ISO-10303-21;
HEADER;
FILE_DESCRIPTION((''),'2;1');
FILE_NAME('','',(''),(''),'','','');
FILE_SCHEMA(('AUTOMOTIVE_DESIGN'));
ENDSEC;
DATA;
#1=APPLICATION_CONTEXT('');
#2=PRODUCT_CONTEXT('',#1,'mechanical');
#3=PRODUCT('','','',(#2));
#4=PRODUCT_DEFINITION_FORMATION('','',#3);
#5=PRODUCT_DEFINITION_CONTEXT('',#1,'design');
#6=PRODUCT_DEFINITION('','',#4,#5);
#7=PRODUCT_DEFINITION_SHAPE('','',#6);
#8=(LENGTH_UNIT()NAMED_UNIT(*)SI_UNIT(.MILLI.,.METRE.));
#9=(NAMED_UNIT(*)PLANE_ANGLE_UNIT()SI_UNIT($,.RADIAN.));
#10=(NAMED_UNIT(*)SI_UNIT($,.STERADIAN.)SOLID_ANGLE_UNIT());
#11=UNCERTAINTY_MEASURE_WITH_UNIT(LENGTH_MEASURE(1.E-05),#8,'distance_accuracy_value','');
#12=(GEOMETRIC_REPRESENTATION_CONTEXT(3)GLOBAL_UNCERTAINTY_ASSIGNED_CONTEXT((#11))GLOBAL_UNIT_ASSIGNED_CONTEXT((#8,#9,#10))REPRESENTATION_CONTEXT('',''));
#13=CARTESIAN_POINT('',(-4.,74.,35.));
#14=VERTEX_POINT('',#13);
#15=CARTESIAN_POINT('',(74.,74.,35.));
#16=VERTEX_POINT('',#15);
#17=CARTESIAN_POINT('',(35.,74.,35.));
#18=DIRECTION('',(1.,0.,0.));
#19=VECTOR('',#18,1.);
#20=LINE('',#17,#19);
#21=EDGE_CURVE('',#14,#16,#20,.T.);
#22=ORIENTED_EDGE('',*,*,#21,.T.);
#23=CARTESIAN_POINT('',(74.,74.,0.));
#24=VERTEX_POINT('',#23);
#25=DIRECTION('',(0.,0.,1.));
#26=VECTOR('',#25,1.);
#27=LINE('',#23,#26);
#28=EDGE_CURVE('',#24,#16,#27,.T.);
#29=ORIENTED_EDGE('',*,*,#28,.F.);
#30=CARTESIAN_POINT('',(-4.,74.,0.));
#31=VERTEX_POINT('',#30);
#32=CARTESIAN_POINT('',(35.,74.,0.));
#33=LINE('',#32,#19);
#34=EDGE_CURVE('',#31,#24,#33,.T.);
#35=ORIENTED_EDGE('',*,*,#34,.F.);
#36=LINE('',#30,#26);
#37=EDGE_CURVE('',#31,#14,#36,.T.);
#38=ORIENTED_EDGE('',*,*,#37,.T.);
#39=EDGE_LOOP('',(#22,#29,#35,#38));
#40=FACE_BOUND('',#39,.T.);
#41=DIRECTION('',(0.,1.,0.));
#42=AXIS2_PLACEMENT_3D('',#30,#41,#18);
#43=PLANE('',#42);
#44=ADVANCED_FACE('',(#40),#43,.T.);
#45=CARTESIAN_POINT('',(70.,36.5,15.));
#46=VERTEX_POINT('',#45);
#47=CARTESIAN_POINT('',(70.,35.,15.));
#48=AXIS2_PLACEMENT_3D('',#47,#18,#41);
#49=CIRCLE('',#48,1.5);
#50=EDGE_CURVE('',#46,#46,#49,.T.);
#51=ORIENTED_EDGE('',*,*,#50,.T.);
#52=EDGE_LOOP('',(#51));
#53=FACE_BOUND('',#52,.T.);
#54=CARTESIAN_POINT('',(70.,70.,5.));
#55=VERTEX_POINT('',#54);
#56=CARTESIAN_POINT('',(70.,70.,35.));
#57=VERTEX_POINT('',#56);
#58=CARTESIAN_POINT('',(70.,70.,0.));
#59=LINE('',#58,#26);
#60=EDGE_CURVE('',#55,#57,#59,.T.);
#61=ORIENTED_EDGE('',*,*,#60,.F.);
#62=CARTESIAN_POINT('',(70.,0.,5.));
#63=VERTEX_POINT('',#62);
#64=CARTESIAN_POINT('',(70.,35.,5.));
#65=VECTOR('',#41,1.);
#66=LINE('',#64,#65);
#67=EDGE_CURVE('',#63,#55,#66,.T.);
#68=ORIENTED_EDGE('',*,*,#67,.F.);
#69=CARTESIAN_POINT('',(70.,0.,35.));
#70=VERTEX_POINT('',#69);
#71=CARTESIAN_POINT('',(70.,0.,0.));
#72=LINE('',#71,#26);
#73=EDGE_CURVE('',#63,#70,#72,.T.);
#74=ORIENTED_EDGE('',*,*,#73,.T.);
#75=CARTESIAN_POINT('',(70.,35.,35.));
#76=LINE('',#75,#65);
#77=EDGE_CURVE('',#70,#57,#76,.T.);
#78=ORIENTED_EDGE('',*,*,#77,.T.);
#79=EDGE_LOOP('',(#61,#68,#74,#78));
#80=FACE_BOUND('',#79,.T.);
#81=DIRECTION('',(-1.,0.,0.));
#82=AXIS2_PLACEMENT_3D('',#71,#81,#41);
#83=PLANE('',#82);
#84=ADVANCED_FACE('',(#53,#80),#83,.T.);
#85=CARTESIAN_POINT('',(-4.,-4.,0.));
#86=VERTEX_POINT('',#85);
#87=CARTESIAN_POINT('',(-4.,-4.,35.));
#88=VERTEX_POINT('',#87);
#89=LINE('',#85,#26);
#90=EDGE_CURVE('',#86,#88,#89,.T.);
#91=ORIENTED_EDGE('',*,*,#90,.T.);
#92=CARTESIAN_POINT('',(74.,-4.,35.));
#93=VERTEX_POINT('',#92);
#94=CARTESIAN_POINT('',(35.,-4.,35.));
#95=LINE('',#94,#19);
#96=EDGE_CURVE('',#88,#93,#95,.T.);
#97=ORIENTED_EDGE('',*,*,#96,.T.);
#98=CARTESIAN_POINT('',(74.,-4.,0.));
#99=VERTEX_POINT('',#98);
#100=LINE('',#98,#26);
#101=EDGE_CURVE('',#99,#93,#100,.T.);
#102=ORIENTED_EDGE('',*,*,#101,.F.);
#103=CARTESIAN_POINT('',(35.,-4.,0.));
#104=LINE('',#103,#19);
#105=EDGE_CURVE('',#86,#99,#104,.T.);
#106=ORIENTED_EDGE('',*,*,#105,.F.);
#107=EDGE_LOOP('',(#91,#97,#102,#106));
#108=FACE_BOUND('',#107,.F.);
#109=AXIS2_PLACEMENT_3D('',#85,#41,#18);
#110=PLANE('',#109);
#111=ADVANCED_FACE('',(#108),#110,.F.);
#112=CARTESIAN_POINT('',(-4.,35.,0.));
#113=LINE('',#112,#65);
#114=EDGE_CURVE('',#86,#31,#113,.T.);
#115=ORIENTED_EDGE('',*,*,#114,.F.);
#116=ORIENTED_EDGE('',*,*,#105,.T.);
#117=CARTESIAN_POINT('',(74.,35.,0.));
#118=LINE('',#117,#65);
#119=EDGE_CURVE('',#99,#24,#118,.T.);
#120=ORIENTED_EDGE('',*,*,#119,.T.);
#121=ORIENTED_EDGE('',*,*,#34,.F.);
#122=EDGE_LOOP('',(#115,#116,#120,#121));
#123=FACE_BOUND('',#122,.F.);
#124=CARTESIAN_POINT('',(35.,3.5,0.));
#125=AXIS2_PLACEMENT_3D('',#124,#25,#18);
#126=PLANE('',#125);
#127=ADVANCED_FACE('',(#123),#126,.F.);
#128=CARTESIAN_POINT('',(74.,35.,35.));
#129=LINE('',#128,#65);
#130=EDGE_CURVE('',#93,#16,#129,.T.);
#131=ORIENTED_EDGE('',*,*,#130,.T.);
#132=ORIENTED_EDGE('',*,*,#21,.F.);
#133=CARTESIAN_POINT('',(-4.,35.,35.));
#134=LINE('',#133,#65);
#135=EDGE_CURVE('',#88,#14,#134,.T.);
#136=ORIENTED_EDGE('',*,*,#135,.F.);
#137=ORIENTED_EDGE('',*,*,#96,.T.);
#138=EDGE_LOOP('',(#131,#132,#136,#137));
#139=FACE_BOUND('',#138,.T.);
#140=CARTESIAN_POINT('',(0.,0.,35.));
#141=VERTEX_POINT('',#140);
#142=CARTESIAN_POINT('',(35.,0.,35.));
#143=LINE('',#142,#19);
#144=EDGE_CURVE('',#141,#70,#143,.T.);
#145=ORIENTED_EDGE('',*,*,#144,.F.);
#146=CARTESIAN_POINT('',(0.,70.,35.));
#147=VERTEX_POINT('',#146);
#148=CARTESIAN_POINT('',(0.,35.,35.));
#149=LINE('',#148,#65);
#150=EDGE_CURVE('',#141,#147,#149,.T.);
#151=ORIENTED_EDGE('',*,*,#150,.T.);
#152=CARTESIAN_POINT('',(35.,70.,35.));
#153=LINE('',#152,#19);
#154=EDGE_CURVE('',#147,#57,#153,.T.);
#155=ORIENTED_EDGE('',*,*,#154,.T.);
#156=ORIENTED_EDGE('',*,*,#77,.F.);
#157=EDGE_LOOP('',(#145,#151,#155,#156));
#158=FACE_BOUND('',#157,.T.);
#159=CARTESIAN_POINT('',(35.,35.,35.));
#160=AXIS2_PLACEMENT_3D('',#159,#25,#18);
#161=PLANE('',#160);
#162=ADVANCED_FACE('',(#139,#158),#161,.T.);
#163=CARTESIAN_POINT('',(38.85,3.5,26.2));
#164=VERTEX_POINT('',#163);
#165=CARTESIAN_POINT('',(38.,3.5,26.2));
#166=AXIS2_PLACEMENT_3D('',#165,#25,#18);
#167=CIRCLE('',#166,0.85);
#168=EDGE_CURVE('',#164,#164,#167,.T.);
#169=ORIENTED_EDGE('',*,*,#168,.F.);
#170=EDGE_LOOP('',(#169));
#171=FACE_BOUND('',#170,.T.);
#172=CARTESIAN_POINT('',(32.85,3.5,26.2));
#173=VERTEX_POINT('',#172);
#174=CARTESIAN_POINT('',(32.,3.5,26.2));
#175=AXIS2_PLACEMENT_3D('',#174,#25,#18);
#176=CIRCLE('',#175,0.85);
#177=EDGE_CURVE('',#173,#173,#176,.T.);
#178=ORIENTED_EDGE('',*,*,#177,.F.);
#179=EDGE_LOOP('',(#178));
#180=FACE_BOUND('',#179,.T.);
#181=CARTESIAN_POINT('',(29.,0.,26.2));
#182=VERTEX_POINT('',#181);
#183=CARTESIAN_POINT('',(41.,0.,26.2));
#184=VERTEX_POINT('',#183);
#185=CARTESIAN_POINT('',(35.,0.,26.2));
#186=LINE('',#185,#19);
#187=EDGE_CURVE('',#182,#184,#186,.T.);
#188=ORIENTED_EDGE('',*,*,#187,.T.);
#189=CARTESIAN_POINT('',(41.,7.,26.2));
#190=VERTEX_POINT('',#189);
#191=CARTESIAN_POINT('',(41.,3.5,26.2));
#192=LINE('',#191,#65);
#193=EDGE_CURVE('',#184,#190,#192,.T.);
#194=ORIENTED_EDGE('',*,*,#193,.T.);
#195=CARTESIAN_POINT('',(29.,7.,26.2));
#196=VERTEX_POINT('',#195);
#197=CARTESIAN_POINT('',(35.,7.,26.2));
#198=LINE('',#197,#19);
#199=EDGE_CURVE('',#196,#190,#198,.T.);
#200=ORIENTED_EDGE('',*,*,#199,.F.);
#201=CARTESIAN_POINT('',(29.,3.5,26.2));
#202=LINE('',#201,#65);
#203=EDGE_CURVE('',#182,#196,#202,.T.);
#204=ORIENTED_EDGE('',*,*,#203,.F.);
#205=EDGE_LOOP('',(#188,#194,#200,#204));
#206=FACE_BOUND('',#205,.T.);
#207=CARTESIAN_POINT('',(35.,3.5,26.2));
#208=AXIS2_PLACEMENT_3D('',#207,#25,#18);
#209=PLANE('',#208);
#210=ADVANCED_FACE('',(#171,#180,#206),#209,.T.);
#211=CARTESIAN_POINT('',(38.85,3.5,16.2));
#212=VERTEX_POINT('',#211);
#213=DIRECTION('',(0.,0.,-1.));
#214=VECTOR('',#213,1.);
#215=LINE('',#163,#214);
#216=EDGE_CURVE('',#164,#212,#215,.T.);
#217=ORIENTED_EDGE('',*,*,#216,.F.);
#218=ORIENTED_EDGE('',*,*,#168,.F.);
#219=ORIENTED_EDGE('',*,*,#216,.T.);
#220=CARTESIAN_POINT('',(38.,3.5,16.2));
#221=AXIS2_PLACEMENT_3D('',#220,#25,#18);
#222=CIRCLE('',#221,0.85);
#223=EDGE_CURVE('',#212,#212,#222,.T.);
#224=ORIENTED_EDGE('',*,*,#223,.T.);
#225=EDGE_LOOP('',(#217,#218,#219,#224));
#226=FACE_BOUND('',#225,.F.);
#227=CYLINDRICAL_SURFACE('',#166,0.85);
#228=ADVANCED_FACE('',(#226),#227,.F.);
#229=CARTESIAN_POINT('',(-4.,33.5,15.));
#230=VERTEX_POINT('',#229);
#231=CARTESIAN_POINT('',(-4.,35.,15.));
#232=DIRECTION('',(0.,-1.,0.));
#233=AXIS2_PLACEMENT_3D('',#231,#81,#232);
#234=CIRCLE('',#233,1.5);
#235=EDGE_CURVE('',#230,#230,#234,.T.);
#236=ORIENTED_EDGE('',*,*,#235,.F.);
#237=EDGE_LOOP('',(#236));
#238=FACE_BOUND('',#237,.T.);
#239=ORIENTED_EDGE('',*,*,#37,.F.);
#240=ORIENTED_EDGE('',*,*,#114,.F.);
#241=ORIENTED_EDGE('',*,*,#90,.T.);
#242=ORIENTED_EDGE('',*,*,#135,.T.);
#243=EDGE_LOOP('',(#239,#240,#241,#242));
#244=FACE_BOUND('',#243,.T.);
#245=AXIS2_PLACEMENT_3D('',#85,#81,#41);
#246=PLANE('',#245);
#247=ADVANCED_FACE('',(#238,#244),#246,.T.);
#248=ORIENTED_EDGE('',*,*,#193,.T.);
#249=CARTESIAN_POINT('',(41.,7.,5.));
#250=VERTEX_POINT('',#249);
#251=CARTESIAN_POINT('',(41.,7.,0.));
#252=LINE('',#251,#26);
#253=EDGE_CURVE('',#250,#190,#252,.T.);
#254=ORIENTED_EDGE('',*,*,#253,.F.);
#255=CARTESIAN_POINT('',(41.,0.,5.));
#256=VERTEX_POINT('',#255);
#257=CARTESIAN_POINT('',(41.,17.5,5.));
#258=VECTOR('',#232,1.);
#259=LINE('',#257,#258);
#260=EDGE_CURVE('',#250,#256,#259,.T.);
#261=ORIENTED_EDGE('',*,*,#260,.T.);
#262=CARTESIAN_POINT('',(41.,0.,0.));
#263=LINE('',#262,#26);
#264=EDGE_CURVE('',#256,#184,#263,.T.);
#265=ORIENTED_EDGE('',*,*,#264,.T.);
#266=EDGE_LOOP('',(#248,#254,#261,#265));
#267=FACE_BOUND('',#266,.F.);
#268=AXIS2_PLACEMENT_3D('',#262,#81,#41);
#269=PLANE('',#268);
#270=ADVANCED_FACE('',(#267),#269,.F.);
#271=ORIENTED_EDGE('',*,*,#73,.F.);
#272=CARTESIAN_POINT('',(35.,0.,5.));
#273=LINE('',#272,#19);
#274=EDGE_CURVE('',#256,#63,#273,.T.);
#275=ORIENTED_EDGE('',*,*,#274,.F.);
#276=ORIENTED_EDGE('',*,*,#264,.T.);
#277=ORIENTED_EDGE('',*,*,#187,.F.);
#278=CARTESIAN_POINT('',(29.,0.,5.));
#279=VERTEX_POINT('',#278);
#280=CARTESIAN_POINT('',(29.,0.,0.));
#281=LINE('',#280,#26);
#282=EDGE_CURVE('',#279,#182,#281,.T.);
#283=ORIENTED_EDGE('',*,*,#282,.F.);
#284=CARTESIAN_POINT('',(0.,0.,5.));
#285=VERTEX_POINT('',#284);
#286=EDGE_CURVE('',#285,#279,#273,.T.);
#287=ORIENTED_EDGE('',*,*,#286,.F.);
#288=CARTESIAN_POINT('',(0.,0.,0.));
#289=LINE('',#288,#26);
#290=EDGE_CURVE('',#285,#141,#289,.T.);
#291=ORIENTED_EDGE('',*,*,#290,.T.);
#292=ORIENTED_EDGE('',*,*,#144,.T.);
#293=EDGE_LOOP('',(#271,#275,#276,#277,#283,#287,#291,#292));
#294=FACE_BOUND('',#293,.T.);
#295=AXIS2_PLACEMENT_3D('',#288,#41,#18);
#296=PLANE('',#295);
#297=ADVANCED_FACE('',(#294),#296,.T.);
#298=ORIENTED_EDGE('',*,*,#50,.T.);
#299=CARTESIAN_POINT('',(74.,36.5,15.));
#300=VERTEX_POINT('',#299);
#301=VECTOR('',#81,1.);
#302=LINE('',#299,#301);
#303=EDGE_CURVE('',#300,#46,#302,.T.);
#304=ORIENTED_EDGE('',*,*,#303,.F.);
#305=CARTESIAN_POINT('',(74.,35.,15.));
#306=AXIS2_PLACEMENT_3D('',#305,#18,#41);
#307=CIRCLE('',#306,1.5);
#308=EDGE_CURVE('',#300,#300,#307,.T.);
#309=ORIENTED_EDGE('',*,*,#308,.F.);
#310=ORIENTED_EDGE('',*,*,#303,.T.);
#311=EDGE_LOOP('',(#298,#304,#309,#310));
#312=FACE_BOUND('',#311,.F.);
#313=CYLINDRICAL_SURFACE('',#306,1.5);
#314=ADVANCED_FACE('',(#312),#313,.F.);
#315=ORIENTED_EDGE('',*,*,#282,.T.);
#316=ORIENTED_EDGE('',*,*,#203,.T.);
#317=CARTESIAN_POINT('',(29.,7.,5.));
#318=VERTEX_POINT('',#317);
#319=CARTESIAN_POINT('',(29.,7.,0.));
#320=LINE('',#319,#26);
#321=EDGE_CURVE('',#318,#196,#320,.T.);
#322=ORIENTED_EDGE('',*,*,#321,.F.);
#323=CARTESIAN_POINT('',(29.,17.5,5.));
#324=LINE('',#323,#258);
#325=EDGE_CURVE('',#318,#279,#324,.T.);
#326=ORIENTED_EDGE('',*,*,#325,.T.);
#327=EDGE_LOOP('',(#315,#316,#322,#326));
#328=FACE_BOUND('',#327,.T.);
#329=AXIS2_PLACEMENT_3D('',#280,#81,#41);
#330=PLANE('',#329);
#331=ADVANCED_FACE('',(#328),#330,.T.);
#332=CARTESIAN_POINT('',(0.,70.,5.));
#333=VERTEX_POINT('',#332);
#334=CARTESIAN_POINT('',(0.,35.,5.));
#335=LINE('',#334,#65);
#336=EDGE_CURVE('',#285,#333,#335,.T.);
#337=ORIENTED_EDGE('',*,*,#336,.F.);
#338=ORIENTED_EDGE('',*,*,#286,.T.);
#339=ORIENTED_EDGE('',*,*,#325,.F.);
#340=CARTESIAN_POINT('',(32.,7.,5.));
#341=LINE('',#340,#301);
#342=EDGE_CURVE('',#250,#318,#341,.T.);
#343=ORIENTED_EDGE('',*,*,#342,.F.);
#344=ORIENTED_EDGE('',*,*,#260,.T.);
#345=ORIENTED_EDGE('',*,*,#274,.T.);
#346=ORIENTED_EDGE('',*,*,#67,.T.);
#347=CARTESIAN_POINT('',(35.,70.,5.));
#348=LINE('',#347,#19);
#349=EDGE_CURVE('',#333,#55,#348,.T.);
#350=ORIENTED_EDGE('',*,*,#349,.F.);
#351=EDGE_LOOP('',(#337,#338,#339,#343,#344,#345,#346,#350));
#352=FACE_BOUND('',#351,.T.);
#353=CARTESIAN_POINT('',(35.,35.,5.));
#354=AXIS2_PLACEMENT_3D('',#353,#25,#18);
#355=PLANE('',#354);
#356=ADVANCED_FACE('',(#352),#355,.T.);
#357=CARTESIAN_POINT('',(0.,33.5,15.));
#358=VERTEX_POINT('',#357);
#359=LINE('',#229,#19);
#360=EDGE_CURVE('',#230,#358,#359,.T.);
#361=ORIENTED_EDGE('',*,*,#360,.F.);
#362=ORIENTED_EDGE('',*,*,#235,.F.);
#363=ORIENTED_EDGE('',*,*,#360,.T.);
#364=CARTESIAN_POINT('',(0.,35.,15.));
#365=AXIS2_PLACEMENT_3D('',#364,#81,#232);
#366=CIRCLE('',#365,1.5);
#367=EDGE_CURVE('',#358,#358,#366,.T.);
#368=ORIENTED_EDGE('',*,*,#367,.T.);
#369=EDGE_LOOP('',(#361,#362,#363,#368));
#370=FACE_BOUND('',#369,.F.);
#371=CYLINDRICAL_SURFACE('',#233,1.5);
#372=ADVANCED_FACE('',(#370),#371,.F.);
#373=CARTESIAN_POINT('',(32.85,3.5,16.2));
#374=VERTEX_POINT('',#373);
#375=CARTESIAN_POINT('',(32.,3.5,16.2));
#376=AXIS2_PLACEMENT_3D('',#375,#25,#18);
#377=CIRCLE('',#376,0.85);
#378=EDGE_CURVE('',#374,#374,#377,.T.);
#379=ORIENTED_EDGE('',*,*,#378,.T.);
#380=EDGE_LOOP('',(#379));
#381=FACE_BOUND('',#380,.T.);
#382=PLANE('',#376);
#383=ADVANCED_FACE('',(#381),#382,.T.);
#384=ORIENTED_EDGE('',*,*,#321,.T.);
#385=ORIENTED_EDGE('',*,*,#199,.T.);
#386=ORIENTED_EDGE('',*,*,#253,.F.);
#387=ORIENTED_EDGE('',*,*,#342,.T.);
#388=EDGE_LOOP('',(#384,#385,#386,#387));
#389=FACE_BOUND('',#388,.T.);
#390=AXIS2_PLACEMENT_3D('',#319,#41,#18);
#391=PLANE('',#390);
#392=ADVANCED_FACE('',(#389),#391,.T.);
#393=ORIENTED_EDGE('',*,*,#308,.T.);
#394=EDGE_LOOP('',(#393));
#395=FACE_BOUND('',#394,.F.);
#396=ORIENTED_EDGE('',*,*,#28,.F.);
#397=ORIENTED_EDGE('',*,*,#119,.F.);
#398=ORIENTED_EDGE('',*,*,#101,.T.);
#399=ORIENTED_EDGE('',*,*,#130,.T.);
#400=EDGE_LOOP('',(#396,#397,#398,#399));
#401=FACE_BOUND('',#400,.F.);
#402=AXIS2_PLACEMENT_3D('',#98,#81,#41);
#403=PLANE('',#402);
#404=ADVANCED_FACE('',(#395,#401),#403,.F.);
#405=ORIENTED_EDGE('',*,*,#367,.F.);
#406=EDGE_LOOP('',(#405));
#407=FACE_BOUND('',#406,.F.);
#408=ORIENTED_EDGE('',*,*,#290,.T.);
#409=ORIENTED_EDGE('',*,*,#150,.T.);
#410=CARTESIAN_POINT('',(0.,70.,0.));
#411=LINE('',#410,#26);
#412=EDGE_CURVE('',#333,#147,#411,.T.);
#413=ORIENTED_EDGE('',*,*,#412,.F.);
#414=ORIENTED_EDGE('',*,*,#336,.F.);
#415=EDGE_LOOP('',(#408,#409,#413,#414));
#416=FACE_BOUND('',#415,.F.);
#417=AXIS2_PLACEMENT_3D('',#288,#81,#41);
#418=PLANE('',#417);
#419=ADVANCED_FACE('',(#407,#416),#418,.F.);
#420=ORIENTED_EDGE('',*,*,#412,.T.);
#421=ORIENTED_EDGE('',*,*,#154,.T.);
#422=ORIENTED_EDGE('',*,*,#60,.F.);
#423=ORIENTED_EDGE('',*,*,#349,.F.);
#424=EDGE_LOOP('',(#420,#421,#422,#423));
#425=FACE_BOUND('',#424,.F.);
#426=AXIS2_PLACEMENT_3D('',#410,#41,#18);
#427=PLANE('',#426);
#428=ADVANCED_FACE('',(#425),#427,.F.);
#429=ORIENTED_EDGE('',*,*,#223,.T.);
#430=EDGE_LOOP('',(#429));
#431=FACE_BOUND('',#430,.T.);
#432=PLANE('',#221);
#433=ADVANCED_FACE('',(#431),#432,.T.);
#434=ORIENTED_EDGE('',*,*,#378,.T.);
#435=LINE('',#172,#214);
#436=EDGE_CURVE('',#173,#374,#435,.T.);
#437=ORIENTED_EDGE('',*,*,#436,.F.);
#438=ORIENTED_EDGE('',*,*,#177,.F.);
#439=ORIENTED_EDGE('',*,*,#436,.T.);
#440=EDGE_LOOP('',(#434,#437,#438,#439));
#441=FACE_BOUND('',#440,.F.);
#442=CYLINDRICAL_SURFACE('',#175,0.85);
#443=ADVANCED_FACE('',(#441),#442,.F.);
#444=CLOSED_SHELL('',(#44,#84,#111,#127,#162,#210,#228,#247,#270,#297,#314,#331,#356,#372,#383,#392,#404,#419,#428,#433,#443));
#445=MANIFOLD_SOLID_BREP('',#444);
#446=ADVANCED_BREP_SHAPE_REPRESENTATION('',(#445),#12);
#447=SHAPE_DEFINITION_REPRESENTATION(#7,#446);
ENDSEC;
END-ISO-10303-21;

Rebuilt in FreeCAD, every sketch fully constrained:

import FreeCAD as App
import Part
import Sketcher
from FreeCAD import Vector
Q = App.Units.Quantity


def add_polygon(sketch, points):
    """Adds a closed chain of lines whose ends are joined by coincident constraints."""
    first, n = sketch.GeometryCount, len(points)
    for a, b in zip(points, points[1:] + points[:1]):
        sketch.addGeometry(Part.LineSegment(App.Vector(*a, 0), App.Vector(*b, 0)), False)
    for i in range(n):
        sketch.addConstraint(Sketcher.Constraint("Coincident", first + i, 2, first + (i + 1) % n, 1))

doc = App.newDocument("Part")
body = doc.addObject("PartDesign::Body", "Body")

sketch1 = doc.addObject("Sketcher::SketchObject", "Sketch")
body.addObject(sketch1)
sketch1.AttachmentSupport = (doc.XY_Plane, [""])
sketch1.MapMode = "FlatFace"
add_polygon(sketch1, [(-4, 74), (-4, -4), (74, -4), (74, 74)])
add_polygon(sketch1, [(70, 0), (0, 0), (0, 70), (70, 70)])
sketch1.addConstraint([
    Sketcher.Constraint("Vertical", 0),
    Sketcher.Constraint("Horizontal", 1),
    Sketcher.Constraint("Vertical", 2),
    Sketcher.Constraint("Horizontal", 3),
    Sketcher.Constraint("Horizontal", 4),
    Sketcher.Constraint("Vertical", 5),
    Sketcher.Constraint("Horizontal", 6),
    Sketcher.Constraint("Vertical", 7),
    Sketcher.Constraint("Coincident", 4, 2, -1, 1),
    Sketcher.Constraint("Equal", 3, 0),
    Sketcher.Constraint("Equal", 6, 5),
    Sketcher.Constraint("DistanceX", 1, 1, 1, 2, Q("78 mm")),
    Sketcher.Constraint("DistanceX", 4, 2, 4, 1, Q("70 mm")),
    Sketcher.Constraint("DistanceX", 0, 2, -1, 1, Q("4 mm")),
    Sketcher.Constraint("DistanceY", 0, 2, -1, 1, Q("4 mm")),
])
pad1 = doc.addObject("PartDesign::Pad", "Pad")
body.addObject(pad1)
pad1.Profile = sketch1
pad1.Length = 35

sketch2 = doc.addObject("Sketcher::SketchObject", "Sketch001")
body.addObject(sketch2)
sketch2.AttachmentSupport = (doc.XY_Plane, [""])
sketch2.MapMode = "FlatFace"
add_polygon(sketch2, [(0, 70), (0, 0), (70, 0), (70, 70)])
sketch2.addConstraint([
    Sketcher.Constraint("Vertical", 0),
    Sketcher.Constraint("Horizontal", 1),
    Sketcher.Constraint("Vertical", 2),
    Sketcher.Constraint("Horizontal", 3),
    Sketcher.Constraint("Coincident", 0, 2, -1, 1),
    Sketcher.Constraint("Equal", 3, 0),
    Sketcher.Constraint("DistanceX", 1, 1, 1, 2, Q("70 mm")),
])
pad2 = doc.addObject("PartDesign::Pad", "Pad001")
body.addObject(pad2)
pad2.Profile = sketch2
pad2.Length = 5

sketch3 = doc.addObject("Sketcher::SketchObject", "Sketch002")
body.addObject(sketch3)
sketch3.AttachmentSupport = (doc.XY_Plane, [""])
sketch3.MapMode = "FlatFace"
add_polygon(sketch3, [(29, 7), (29, 0), (41, 0), (41, 7)])
sketch3.addConstraint([
    Sketcher.Constraint("Vertical", 0),
    Sketcher.Constraint("Horizontal", 1),
    Sketcher.Constraint("Vertical", 2),
    Sketcher.Constraint("Horizontal", 3),
    Sketcher.Constraint("PointOnObject", 0, 2, -1),
    Sketcher.Constraint("DistanceX", 1, 1, 1, 2, Q("12 mm")),
    Sketcher.Constraint("DistanceY", 0, 2, 0, 1, Q("7 mm")),
    Sketcher.Constraint("DistanceX", -1, 1, 0, 2, Q("29 mm")),
])
pad3 = doc.addObject("PartDesign::Pad", "Pad002")
body.addObject(pad3)
pad3.Profile = sketch3
pad3.Length = 26.2

sketch4 = doc.addObject("Sketcher::SketchObject", "Sketch003")
body.addObject(sketch4)
sketch4.AttachmentSupport = (doc.XY_Plane, [""])
sketch4.MapMode = "FlatFace"
sketch4.AttachmentOffset = App.Placement(Vector(0, 0, 26.2), App.Rotation())
sketch4.addGeometry([
    Part.Circle(Vector(38, 3.5, 0), Vector(0, 0, 1), 0.8),
    Part.Circle(Vector(32, 3.5, 0), Vector(0, 0, 1), 0.8),
], False)
sketch4.addConstraint([
    Sketcher.Constraint("Equal", 0, 1),
    Sketcher.Constraint("Horizontal", 0, 3, 1, 3),
    Sketcher.Constraint("Diameter", 0, Q("1.7 mm")),
    Sketcher.Constraint("DistanceX", -1, 1, 0, 3, Q("38 mm")),
    Sketcher.Constraint("DistanceX", -1, 1, 1, 3, Q("32 mm")),
    Sketcher.Constraint("DistanceY", -1, 1, 0, 3, Q("3.5 mm")),
])
pocket1 = doc.addObject("PartDesign::Pocket", "Pocket")
body.addObject(pocket1)
pocket1.Profile = sketch4
pocket1.Length = 10

sketch5 = doc.addObject("Sketcher::SketchObject", "Sketch004")
body.addObject(sketch5)
sketch5.AttachmentSupport = (doc.YZ_Plane, [""])
sketch5.MapMode = "FlatFace"
sketch5.AttachmentOffset = App.Placement(Vector(0, 0, 74), App.Rotation())
sketch5.addGeometry(Part.Circle(Vector(35, 15, 0), Vector(0, 0, 1), 1.5), False)
sketch5.addConstraint([
    Sketcher.Constraint("Diameter", 0, Q("3 mm")),
    Sketcher.Constraint("DistanceX", -1, 1, 0, 3, Q("35 mm")),
    Sketcher.Constraint("DistanceY", -1, 1, 0, 3, Q("15 mm")),
])
pocket2 = doc.addObject("PartDesign::Pocket", "Pocket001")
body.addObject(pocket2)
pocket2.Profile = sketch5
pocket2.Length = 25.4

sketch6 = doc.addObject("Sketcher::SketchObject", "Sketch005")
body.addObject(sketch6)
sketch6.AttachmentSupport = (doc.YZ_Plane, [""])
sketch6.MapMode = "FlatFace"
sketch6.AttachmentOffset = App.Placement(Vector(0, 0, -4), App.Rotation())
sketch6.addGeometry(Part.Circle(Vector(35, 15, 0), Vector(0, 0, 1), 1.5), False)
sketch6.addConstraint([
    Sketcher.Constraint("Diameter", 0, Q("3 mm")),
    Sketcher.Constraint("DistanceX", -1, 1, 0, 3, Q("35 mm")),
    Sketcher.Constraint("DistanceY", -1, 1, 0, 3, Q("15 mm")),
])
pocket3 = doc.addObject("PartDesign::Pocket", "Pocket002")
body.addObject(pocket3)
pocket3.Profile = sketch6
pocket3.Length = 25.4
pocket3.Reversed = True

doc.recompute()
